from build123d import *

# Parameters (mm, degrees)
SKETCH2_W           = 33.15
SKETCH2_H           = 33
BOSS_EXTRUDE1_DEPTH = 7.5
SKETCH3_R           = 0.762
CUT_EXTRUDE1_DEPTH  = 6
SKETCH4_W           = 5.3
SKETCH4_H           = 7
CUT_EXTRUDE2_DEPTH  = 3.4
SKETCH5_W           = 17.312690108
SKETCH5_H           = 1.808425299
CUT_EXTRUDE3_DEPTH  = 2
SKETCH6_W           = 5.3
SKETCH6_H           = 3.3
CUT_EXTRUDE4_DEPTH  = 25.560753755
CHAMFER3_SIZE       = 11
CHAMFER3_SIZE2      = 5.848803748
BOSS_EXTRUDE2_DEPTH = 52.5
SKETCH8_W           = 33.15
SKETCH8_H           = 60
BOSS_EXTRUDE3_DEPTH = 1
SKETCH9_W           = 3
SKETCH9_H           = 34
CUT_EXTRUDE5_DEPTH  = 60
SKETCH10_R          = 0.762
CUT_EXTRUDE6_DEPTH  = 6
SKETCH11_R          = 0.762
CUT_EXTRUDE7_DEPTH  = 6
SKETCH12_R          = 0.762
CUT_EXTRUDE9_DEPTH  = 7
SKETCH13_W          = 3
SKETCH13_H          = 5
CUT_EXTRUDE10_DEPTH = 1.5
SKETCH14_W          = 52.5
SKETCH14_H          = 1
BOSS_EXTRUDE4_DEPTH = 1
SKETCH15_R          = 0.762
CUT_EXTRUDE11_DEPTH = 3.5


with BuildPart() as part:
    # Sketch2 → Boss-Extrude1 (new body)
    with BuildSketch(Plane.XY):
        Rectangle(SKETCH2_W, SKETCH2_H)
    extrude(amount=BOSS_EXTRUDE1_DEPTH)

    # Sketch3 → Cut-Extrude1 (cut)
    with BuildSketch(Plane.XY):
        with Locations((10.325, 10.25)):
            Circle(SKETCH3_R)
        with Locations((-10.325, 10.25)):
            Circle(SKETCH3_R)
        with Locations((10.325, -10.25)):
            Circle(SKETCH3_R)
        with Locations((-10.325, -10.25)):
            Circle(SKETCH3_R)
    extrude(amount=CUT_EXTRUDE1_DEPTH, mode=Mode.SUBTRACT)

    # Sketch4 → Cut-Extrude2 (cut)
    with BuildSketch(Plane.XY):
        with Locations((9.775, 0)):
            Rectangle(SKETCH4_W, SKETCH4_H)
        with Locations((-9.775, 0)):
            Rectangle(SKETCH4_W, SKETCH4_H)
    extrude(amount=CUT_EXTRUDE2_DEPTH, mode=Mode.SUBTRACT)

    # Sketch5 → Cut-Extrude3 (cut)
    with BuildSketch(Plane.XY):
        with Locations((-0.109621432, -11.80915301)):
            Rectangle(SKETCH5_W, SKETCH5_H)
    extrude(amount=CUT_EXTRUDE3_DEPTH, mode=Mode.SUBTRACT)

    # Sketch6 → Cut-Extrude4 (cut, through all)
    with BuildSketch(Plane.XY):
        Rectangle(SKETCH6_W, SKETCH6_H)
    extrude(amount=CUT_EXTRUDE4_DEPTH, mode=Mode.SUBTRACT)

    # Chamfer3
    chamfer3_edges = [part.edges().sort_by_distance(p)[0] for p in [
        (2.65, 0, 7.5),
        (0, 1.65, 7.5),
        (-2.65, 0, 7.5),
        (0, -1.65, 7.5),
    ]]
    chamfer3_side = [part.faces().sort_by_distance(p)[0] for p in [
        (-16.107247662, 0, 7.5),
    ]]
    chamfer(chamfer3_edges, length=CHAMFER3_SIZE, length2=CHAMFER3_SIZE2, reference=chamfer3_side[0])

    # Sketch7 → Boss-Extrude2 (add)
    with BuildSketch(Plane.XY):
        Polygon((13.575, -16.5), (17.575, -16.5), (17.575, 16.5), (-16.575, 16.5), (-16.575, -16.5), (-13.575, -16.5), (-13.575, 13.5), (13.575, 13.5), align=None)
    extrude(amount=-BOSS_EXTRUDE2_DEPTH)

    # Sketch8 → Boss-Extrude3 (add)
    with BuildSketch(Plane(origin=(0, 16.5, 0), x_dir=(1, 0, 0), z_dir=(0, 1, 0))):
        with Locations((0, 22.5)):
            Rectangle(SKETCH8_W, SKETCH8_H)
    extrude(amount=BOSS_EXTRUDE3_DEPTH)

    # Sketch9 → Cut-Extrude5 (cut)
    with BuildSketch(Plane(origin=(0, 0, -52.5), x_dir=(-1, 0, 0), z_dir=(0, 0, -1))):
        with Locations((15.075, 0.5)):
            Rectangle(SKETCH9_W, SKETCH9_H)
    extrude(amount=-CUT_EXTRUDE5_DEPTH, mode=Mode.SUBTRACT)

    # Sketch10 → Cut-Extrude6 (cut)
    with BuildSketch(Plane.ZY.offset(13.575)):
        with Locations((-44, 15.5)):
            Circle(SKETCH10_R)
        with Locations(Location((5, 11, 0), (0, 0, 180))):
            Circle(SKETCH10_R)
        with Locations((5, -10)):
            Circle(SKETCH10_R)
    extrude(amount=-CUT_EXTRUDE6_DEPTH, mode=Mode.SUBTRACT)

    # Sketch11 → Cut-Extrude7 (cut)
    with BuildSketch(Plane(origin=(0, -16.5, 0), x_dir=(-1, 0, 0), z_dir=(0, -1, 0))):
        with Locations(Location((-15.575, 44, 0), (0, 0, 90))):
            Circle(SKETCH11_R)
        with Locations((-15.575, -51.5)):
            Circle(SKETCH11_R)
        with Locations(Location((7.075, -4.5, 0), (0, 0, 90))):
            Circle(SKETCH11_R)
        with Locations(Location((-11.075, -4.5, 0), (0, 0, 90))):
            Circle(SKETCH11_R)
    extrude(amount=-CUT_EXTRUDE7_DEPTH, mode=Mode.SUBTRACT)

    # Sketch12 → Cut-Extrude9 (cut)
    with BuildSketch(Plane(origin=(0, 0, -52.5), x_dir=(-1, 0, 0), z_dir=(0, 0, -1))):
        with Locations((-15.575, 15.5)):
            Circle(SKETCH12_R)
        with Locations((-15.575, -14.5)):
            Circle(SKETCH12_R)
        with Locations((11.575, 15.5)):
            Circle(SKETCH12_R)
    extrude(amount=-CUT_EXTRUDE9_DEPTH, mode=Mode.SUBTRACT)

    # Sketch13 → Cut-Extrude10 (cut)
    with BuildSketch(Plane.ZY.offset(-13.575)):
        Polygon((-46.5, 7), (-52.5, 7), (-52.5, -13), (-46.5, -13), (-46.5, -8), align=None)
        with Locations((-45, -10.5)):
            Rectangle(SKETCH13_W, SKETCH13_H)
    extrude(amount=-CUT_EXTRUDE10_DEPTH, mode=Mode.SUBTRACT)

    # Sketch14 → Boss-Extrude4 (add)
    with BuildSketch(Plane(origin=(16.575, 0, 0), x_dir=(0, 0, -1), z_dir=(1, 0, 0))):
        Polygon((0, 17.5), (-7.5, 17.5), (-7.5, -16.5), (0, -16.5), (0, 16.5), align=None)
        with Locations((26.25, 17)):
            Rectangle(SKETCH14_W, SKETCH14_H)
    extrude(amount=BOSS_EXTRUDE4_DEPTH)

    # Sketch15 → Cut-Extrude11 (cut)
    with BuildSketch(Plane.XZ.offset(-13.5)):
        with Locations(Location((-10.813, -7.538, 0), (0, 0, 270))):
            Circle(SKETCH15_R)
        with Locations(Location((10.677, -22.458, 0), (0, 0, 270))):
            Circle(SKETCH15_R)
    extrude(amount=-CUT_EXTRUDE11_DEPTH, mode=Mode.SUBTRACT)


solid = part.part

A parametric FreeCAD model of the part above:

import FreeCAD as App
import Part
import Sketcher

V = App.Vector


def edges_at(feature, points):
    """Names of the edges that pass closest to the given points."""
    edges = feature.Shape.Edges
    near = lambda p: min(range(len(edges)), key=lambda i: edges[i].distToShape(Part.Vertex(*p))[0])
    return sorted({f"Edge{near(p) + 1}" for p in points})

doc = App.newDocument("Part")
body = doc.addObject("PartDesign::Body", "Body")

# Sketch on XY plane
sketch1 = body.newObject("Sketcher::SketchObject", "Sketch")
sketch1.AttachmentSupport = (doc.getObject("XY_Plane"), [""])
sketch1.MapMode = "FlatFace"
sketch1.addGeometry([
    Part.LineSegment(V(-17, 16, 0), V(-17, -16, 0)),
    Part.LineSegment(V(-17, -16, 0), V(17, -16, 0)),
    Part.LineSegment(V(17, -16, 0), V(17, 16, 0)),
    Part.LineSegment(V(17, 16, 0), V(-17, 16, 0)),
], False)
sketch1.addConstraint([
    Sketcher.Constraint("Coincident", 0, 2, 1, 1),
    Sketcher.Constraint("Coincident", 1, 2, 2, 1),
    Sketcher.Constraint("Coincident", 2, 2, 3, 1),
    Sketcher.Constraint("Coincident", 3, 2, 0, 1),
    Sketcher.Constraint("Vertical", 0),
    Sketcher.Constraint("Horizontal", 1),
    Sketcher.Constraint("Vertical", 2),
    Sketcher.Constraint("Horizontal", 3),
    Sketcher.Constraint("Symmetric", 0, 2, 2, 2, -1, 1),
    Sketcher.Constraint("DistanceY", 0, 2, 0, 1, 33.0),
    Sketcher.Constraint("DistanceX", 1, 1, 1, 2, 33.15),
])
pad1 = body.newObject("PartDesign::Pad", "Pad")
pad1.Profile = sketch1
pad1.Length = 7.5

# Sketch on XY plane
sketch2 = body.newObject("Sketcher::SketchObject", "Sketch001")
sketch2.AttachmentSupport = (doc.getObject("XY_Plane"), [""])
sketch2.MapMode = "FlatFace"
sketch2.addGeometry([
    Part.Circle(V(10.3, 10.2, 0), V(0, 0, 1), 0.8),
    Part.Circle(V(-10.3, 10.2, 0), V(0, 0, 1), 0.8),
    Part.Circle(V(10.3, -10.2, 0), V(0, 0, 1), 0.8),
    Part.Circle(V(-10.3, -10.2, 0), V(0, 0, 1), 0.8),
], False)
sketch2.addConstraint([
    Sketcher.Constraint("Equal", 0, 1),
    Sketcher.Constraint("Equal", 1, 2),
    Sketcher.Constraint("Equal", 2, 3),
    Sketcher.Constraint("Symmetric", 1, 3, 2, 3, -1, 1),
    Sketcher.Constraint("Symmetric", 0, 3, 3, 3, -1, 1),
    Sketcher.Constraint("Symmetric", 0, 3, 1, 3, -2),
    Sketcher.Constraint("Diameter", 0, 1.524),
    Sketcher.Constraint("DistanceY", 2, 3, 0, 3, 20.5),
    Sketcher.Constraint("DistanceX", 1, 3, 0, 3, 20.65),
])
pocket1 = body.newObject("PartDesign::Pocket", "Pocket")
pocket1.Profile = sketch2
pocket1.Length = 6
pocket1.Reversed = True

# Sketch on XY plane
sketch3 = body.newObject("Sketcher::SketchObject", "Sketch002")
sketch3.AttachmentSupport = (doc.getObject("XY_Plane"), [""])
sketch3.MapMode = "FlatFace"
sketch3.addGeometry([
    Part.LineSegment(V(7, 4, 0), V(7, -4, 0)),  # 0
    Part.LineSegment(V(7, -4, 0), V(12, -4, 0)),  # 1
    Part.LineSegment(V(12, -4, 0), V(12, 4, 0)),  # 2
    Part.LineSegment(V(12, 4, 0), V(7, 4, 0)),  # 3
    Part.LineSegment(V(-12, 4, 0), V(-12, -4, 0)),  # 4
    Part.LineSegment(V(-12, -4, 0), V(-7, -4, 0)),  # 5
    Part.LineSegment(V(-7, -4, 0), V(-7, 4, 0)),  # 6
    Part.LineSegment(V(-7, 4, 0), V(-12, 4, 0)),  # 7
], False)
sketch3.addConstraint([
    Sketcher.Constraint("Coincident", 0, 2, 1, 1),
    Sketcher.Constraint("Coincident", 1, 2, 2, 1),
    Sketcher.Constraint("Coincident", 2, 2, 3, 1),
    Sketcher.Constraint("Coincident", 3, 2, 0, 1),
    Sketcher.Constraint("Coincident", 4, 2, 5, 1),
    Sketcher.Constraint("Coincident", 5, 2, 6, 1),
    Sketcher.Constraint("Coincident", 6, 2, 7, 1),
    Sketcher.Constraint("Coincident", 7, 2, 4, 1),
    Sketcher.Constraint("Vertical", 0),
    Sketcher.Constraint("Horizontal", 1),
    Sketcher.Constraint("Vertical", 2),
    Sketcher.Constraint("Horizontal", 3),
    Sketcher.Constraint("Vertical", 4),
    Sketcher.Constraint("Horizontal", 5),
    Sketcher.Constraint("Vertical", 6),
    Sketcher.Constraint("Horizontal", 7),
    Sketcher.Constraint("Symmetric", 2, 2, 4, 2, -1, 1),
    Sketcher.Constraint("Symmetric", 0, 2, 6, 2, -1, 1),
    Sketcher.Constraint("Horizontal", 1, 2, 4, 2),
    Sketcher.Constraint("DistanceY", 0, 2, 0, 1, 7.0),
    Sketcher.Constraint("DistanceX", 1, 1, 1, 2, 5.3),
    Sketcher.Constraint("DistanceX", 4, 2, 0, 2, 19.55),
])
pocket2 = body.newObject("PartDesign::Pocket", "Pocket001")
pocket2.Profile = sketch3
pocket2.Length = 3.4
pocket2.Reversed = True

# Sketch on XY plane
sketch4 = body.newObject("Sketcher::SketchObject", "Sketch003")
sketch4.AttachmentSupport = (doc.getObject("XY_Plane"), [""])
sketch4.MapMode = "FlatFace"
sketch4.addGeometry([
    Part.LineSegment(V(-8.8, -10.9, 0), V(-8.8, -12.7, 0)),
    Part.LineSegment(V(-8.8, -12.7, 0), V(8.5, -12.7, 0)),
    Part.LineSegment(V(8.5, -12.7, 0), V(8.5, -10.9, 0)),
    Part.LineSegment(V(8.5, -10.9, 0), V(-8.8, -10.9, 0)),
], False)
sketch4.addConstraint([
    Sketcher.Constraint("Coincident", 0, 2, 1, 1),
    Sketcher.Constraint("Coincident", 1, 2, 2, 1),
    Sketcher.Constraint("Coincident", 2, 2, 3, 1),
    Sketcher.Constraint("Coincident", 3, 2, 0, 1),
    Sketcher.Constraint("Vertical", 0),
    Sketcher.Constraint("Horizontal", 1),
    Sketcher.Constraint("Vertical", 2),
    Sketcher.Constraint("Horizontal", 3),
    Sketcher.Constraint("DistanceX", 1, 1, 1, 2, 17.31269),
    Sketcher.Constraint("DistanceY", 0, 2, 0, 1, 1.808425),
    Sketcher.Constraint("DistanceY", 2, 2, -1, 1, 10.90494),
    Sketcher.Constraint("DistanceX", 0, 2, -1, 1, 8.765966),
])
pocket3 = body.newObject("PartDesign::Pocket", "Pocket002")
pocket3.Profile = sketch4
pocket3.Length = 2
pocket3.Reversed = True

# Sketch on XY plane
sketch5 = body.newObject("Sketcher::SketchObject", "Sketch004")
sketch5.AttachmentSupport = (doc.getObject("XY_Plane"), [""])
sketch5.MapMode = "FlatFace"
sketch5.addGeometry([
    Part.LineSegment(V(-2.6, 1.6, 0), V(-2.6, -1.6, 0)),
    Part.LineSegment(V(-2.6, -1.6, 0), V(2.6, -1.6, 0)),
    Part.LineSegment(V(2.6, -1.6, 0), V(2.6, 1.6, 0)),
    Part.LineSegment(V(2.6, 1.6, 0), V(-2.6, 1.6, 0)),
], False)
sketch5.addConstraint([
    Sketcher.Constraint("Coincident", 0, 2, 1, 1),
    Sketcher.Constraint("Coincident", 1, 2, 2, 1),
    Sketcher.Constraint("Coincident", 2, 2, 3, 1),
    Sketcher.Constraint("Coincident", 3, 2, 0, 1),
    Sketcher.Constraint("Vertical", 0),
    Sketcher.Constraint("Horizontal", 1),
    Sketcher.Constraint("Vertical", 2),
    Sketcher.Constraint("Horizontal", 3),
    Sketcher.Constraint("Symmetric", 0, 2, 2, 2, -1, 1),
    Sketcher.Constraint("DistanceX", 1, 1, 1, 2, 5.3),
    Sketcher.Constraint("DistanceY", 0, 2, 0, 1, 3.3),
])
pocket4 = body.newObject("PartDesign::Pocket", "Pocket003")
pocket4.Profile = sketch5
pocket4.Type = "ThroughAll"
pocket4.Reversed = True
doc.recompute()

chamfer = body.newObject("PartDesign::Chamfer", "Chamfer")
chamfer.Base = (pocket4, edges_at(pocket4, [
    (2.65, 0, 7.5),
    (0, 1.65, 7.5),
    (-2.65, 0, 7.5),
    (0, -1.65, 7.5),
]))
chamfer.ChamferType = "Two distances"
chamfer.Size = 11
chamfer.Size2 = 5.848804

# Sketch on XY plane
sketch6 = body.newObject("Sketcher::SketchObject", "Sketch005")
sketch6.AttachmentSupport = (doc.getObject("XY_Plane"), [""])
sketch6.MapMode = "FlatFace"
sketch6.addGeometry([
    Part.LineSegment(V(13.6, -16.5, 0), V(17.6, -16.5, 0)),  # 0
    Part.LineSegment(V(17.6, -16.5, 0), V(17.6, 16.5, 0)),  # 1
    Part.LineSegment(V(17.6, 16.5, 0), V(-16.6, 16.5, 0)),  # 2
    Part.LineSegment(V(-16.6, 16.5, 0), V(-16.6, -16.5, 0)),  # 3
    Part.LineSegment(V(-16.6, -16.5, 0), V(-13.6, -16.5, 0)),  # 4
    Part.LineSegment(V(-13.6, -16.5, 0), V(-13.6, 13.5, 0)),  # 5
    Part.LineSegment(V(-13.6, 13.5, 0), V(13.6, 13.5, 0)),  # 6
    Part.LineSegment(V(13.6, 13.5, 0), V(13.6, -16.5, 0)),  # 7
], False)
sketch6.addConstraint([
    Sketcher.Constraint("Coincident", 0, 2, 1, 1),
    Sketcher.Constraint("Coincident", 1, 2, 2, 1),
    Sketcher.Constraint("Coincident", 2, 2, 3, 1),
    Sketcher.Constraint("Coincident", 3, 2, 4, 1),
    Sketcher.Constraint("Coincident", 4, 2, 5, 1),
    Sketcher.Constraint("Coincident", 5, 2, 6, 1),
    Sketcher.Constraint("Coincident", 6, 2, 7, 1),
    Sketcher.Constraint("Coincident", 7, 2, 0, 1),
    Sketcher.Constraint("Horizontal", 0),
    Sketcher.Constraint("Vertical", 1),
    Sketcher.Constraint("Horizontal", 2),
    Sketcher.Constraint("Vertical", 3),
    Sketcher.Constraint("Horizontal", 4),
    Sketcher.Constraint("Vertical", 5),
    Sketcher.Constraint("Horizontal", 6),
    Sketcher.Constraint("Vertical", 7),
    Sketcher.Constraint("Symmetric", 4, 2, 7, 2, -2),
    Sketcher.Constraint("DistanceX", 0, 1, 0, 2, 4.0),
    Sketcher.Constraint("DistanceX", 4, 1, 4, 2, 3.0),
    Sketcher.Constraint("DistanceY", 1, 1, 1, 2, 33.0),
    Sketcher.Constraint("DistanceY", 5, 1, 5, 2, 30.0),
    Sketcher.Constraint("DistanceX", 2, 2, 2, 1, 34.15),
    Sketcher.Constraint("DistanceY", 0, 2, -1, 1, 16.5),
])
pad2 = body.newObject("PartDesign::Pad", "Pad001")
pad2.Profile = sketch6
pad2.Length = 52.5
pad2.Reversed = True

# Sketch on XZ plane
sketch7 = body.newObject("Sketcher::SketchObject", "Sketch006")
sketch7.AttachmentSupport = (doc.getObject("XZ_Plane"), [""])
sketch7.MapMode = "FlatFace"
sketch7.AttachmentOffset = App.Placement(V(0, 0, -16.5), App.Rotation())
sketch7.addGeometry([
    Part.LineSegment(V(-17, -52, 0), V(-17, 8, 0)),
    Part.LineSegment(V(-17, 8, 0), V(17, 8, 0)),
    Part.LineSegment(V(17, 8, 0), V(17, -52, 0)),
    Part.LineSegment(V(17, -52, 0), V(-17, -52, 0)),
], False)
sketch7.addConstraint([
    Sketcher.Constraint("Coincident", 0, 2, 1, 1),
    Sketcher.Constraint("Coincident", 1, 2, 2, 1),
    Sketcher.Constraint("Coincident", 2, 2, 3, 1),
    Sketcher.Constraint("Coincident", 3, 2, 0, 1),
    Sketcher.Constraint("Vertical", 0),
    Sketcher.Constraint("Horizontal", 1),
    Sketcher.Constraint("Vertical", 2),
    Sketcher.Constraint("Horizontal", 3),
    Sketcher.Constraint("DistanceY", 0, 1, 0, 2, 60.0),
    Sketcher.Constraint("DistanceX", 1, 1, 1, 2, 33.15),
    Sketcher.Constraint("DistanceY", -1, 1, 0, 2, 7.5),
    Sketcher.Constraint("DistanceX", 0, 2, -1, 1, 16.575),
])
pad3 = body.newObject("PartDesign::Pad", "Pad002")
pad3.Profile = sketch7
pad3.Length = 1
pad3.Reversed = True

# Sketch on XY plane
sketch8 = body.newObject("Sketcher::SketchObject", "Sketch007")
sketch8.AttachmentSupport = (doc.getObject("XY_Plane"), [""])
sketch8.MapMode = "FlatFace"
sketch8.AttachmentOffset = App.Placement(V(0, 0, -52.5), App.Rotation())
sketch8.addGeometry([
    Part.LineSegment(V(-13.6, 17.5, 0), V(-13.6, -16.5, 0)),
    Part.LineSegment(V(-13.6, -16.5, 0), V(-16.6, -16.5, 0)),
    Part.LineSegment(V(-16.6, -16.5, 0), V(-16.6, 17.5, 0)),
    Part.LineSegment(V(-16.6, 17.5, 0), V(-13.6, 17.5, 0)),
], False)
sketch8.addConstraint([
    Sketcher.Constraint("Coincident", 0, 2, 1, 1),
    Sketcher.Constraint("Coincident", 1, 2, 2, 1),
    Sketcher.Constraint("Coincident", 2, 2, 3, 1),
    Sketcher.Constraint("Coincident", 3, 2, 0, 1),
    Sketcher.Constraint("Vertical", 0),
    Sketcher.Constraint("Horizontal", 1),
    Sketcher.Constraint("Vertical", 2),
    Sketcher.Constraint("Horizontal", 3),
    Sketcher.Constraint("DistanceX", 1, 2, 1, 1, 3.0),
    Sketcher.Constraint("DistanceY", 0, 2, 0, 1, 34.0),
    Sketcher.Constraint("DistanceY", 0, 2, -1, 1, 16.5),
    Sketcher.Constraint("DistanceX", 0, 2, -1, 1, 13.575),
])
pocket5 = body.newObject("PartDesign::Pocket", "Pocket004")
pocket5.Profile = sketch8
pocket5.Length = 60
pocket5.Reversed = True

# Sketch on YZ plane
sketch9 = body.newObject("Sketcher::SketchObject", "Sketch008")
sketch9.AttachmentSupport = (doc.getObject("YZ_Plane"), [""])
sketch9.MapMode = "FlatFace"
sketch9.AttachmentOffset = App.Placement(V(0, 0, -13.575), App.Rotation())
sketch9.addGeometry([
    Part.Circle(V(15.5, -44, 0), V(0, 0, 1), 0.8),
    Part.Circle(V(11, 5, 0), V(0, 0, 1), 0.8),
    Part.Circle(V(-10, 5, 0), V(0, 0, 1), 0.8),
], False)
sketch9.addConstraint([
    Sketcher.Constraint("Equal", 0, 1),
    Sketcher.Constraint("Equal", 1, 2),
    Sketcher.Constraint("Horizontal", 1, 3, 2, 3),
    Sketcher.Constraint("Diameter", 0, 1.524),
    Sketcher.Constraint("DistanceY", 0, 3, -1, 1, 44.0),
    Sketcher.Constraint("DistanceX", -1, 1, 1, 3, 11.0),
    Sketcher.Constraint("DistanceY", -1, 1, 1, 3, 5.0),
    Sketcher.Constraint("DistanceX", 2, 3, -1, 1, 10.0),
    Sketcher.Constraint("DistanceX", -1, 1, 0, 3, 15.5),
])
pocket6 = body.newObject("PartDesign::Pocket", "Pocket005")
pocket6.Profile = sketch9
pocket6.Length = 6
pocket6.Reversed = True

# Sketch on XZ plane
sketch10 = body.newObject("Sketcher::SketchObject", "Sketch009")
sketch10.AttachmentSupport = (doc.getObject("XZ_Plane"), [""])
sketch10.MapMode = "FlatFace"
sketch10.AttachmentOffset = App.Placement(V(0, 0, 16.5), App.Rotation())
sketch10.addGeometry([
    Part.Circle(V(15.6, -44, 0), V(0, 0, 1), 0.8),
    Part.Circle(V(15.6, 51.5, 0), V(0, 0, 1), 0.8),
    Part.Circle(V(-7.1, 4.5, 0), V(0, 0, 1), 0.8),
    Part.Circle(V(11.1, 4.5, 0), V(0, 0, 1), 0.8),
], False)
sketch10.addConstraint([
    Sketcher.Constraint("Equal", 0, 1),
    Sketcher.Constraint("Equal", 1, 2),
    Sketcher.Constraint("Equal", 2, 3),
    Sketcher.Constraint("Horizontal", 2, 3, 3, 3),
    Sketcher.Constraint("Vertical", 0, 3, 1, 3),
    Sketcher.Constraint("Diameter", 0, 1.524),
    Sketcher.Constraint("DistanceY", 0, 3, -1, 1, 44.0),
    Sketcher.Constraint("DistanceY", 2, 3, 1, 3, 47.0),
    Sketcher.Constraint("DistanceY", -1, 1, 1, 3, 51.5),
    Sketcher.Constraint("DistanceX", 3, 3, 1, 3, 4.5),
    Sketcher.Constraint("DistanceX", 2, 3, 1, 3, 22.65),
    Sketcher.Constraint("DistanceX", -1, 1, 0, 3, 15.575),
])
pocket7 = body.newObject("PartDesign::Pocket", "Pocket006")
pocket7.Profile = sketch10
pocket7.Length = 6

# Sketch on XY plane
sketch11 = body.newObject("Sketcher::SketchObject", "Sketch010")
sketch11.AttachmentSupport = (doc.getObject("XY_Plane"), [""])
sketch11.MapMode = "FlatFace"
sketch11.AttachmentOffset = App.Placement(V(0, 0, -52.5), App.Rotation())
sketch11.addGeometry([
    Part.Circle(V(15.6, 15.5, 0), V(0, 0, 1), 0.8),
    Part.Circle(V(15.6, -14.5, 0), V(0, 0, 1), 0.8),
    Part.Circle(V(-11.6, 15.5, 0), V(0, 0, 1), 0.8),
], False)
sketch11.addConstraint([
    Sketcher.Constraint("Equal", 0, 1),
    Sketcher.Constraint("Equal", 1, 2),
    Sketcher.Constraint("Horizontal", 0, 3, 2, 3),
    Sketcher.Constraint("Vertical", 0, 3, 1, 3),
    Sketcher.Constraint("Diameter", 0, 1.524),
    Sketcher.Constraint("DistanceY", 1, 3, 0, 3, 30.0),
    Sketcher.Constraint("DistanceY", -1, 1, 0, 3, 15.5),
    Sketcher.Constraint("DistanceX", 2, 3, 0, 3, 27.15),
    Sketcher.Constraint("DistanceX", -1, 1, 0, 3, 15.575),
])
pocket8 = body.newObject("PartDesign::Pocket", "Pocket007")
pocket8.Profile = sketch11
pocket8.Length = 7
pocket8.Reversed = True

# Sketch on YZ plane
sketch12 = body.newObject("Sketcher::SketchObject", "Sketch011")
sketch12.AttachmentSupport = (doc.getObject("YZ_Plane"), [""])
sketch12.MapMode = "FlatFace"
sketch12.AttachmentOffset = App.Placement(V(0, 0, 13.575), App.Rotation())
sketch12.addGeometry([
    Part.LineSegment(V(7, -46.5, 0), V(7, -52.5, 0)),  # 0
    Part.LineSegment(V(7, -52.5, 0), V(-13, -52.5, 0)),  # 1
    Part.LineSegment(V(-13, -52.5, 0), V(-13, -43.5, 0)),  # 2
    Part.LineSegment(V(-13, -43.5, 0), V(-8, -43.5, 0)),  # 3
    Part.LineSegment(V(-8, -43.5, 0), V(-8, -46.5, 0)),  # 4
    Part.LineSegment(V(-8, -46.5, 0), V(7, -46.5, 0)),  # 5
], False)
sketch12.addConstraint([
    Sketcher.Constraint("Coincident", 0, 2, 1, 1),
    Sketcher.Constraint("Coincident", 1, 2, 2, 1),
    Sketcher.Constraint("Coincident", 2, 2, 3, 1),
    Sketcher.Constraint("Coincident", 3, 2, 4, 1),
    Sketcher.Constraint("Coincident", 4, 2, 5, 1),
    Sketcher.Constraint("Coincident", 5, 2, 0, 1),
    Sketcher.Constraint("Vertical", 0),
    Sketcher.Constraint("Horizontal", 1),
    Sketcher.Constraint("Vertical", 2),
    Sketcher.Constraint("Horizontal", 3),
    Sketcher.Constraint("Vertical", 4),
    Sketcher.Constraint("Horizontal", 5),
    Sketcher.Constraint("DistanceX", 1, 2, 1, 1, 20.0),
    Sketcher.Constraint("DistanceX", 3, 1, 3, 2, 5.0),
    Sketcher.Constraint("DistanceY", 0, 2, 0, 1, 6.0),
    Sketcher.Constraint("DistanceY", 2, 1, 2, 2, 9.0),
    Sketcher.Constraint("DistanceX", -1, 1, 0, 2, 7.0),
    Sketcher.Constraint("DistanceY", 0, 2, -1, 1, 52.5),
])
pocket9 = body.newObject("PartDesign::Pocket", "Pocket008")
pocket9.Profile = sketch12
pocket9.Length = 1.5
pocket9.Reversed = True

# Sketch on YZ plane
sketch13 = body.newObject("Sketcher::SketchObject", "Sketch012")
sketch13.AttachmentSupport = (doc.getObject("YZ_Plane"), [""])
sketch13.MapMode = "FlatFace"
sketch13.AttachmentOffset = App.Placement(V(0, 0, 16.575), App.Rotation())
sketch13.addGeometry([
    Part.LineSegment(V(17.5, 7.5, 0), V(-16.5, 7.5, 0)),  # 0
    Part.LineSegment(V(-16.5, 7.5, 0), V(-16.5, 0, 0)),  # 1
    Part.LineSegment(V(-16.5, 0, 0), V(16.5, 0, 0)),  # 2
    Part.LineSegment(V(16.5, 0, 0), V(16.5, -52.5, 0)),  # 3
    Part.LineSegment(V(16.5, -52.5, 0), V(17.5, -52.5, 0)),  # 4
    Part.LineSegment(V(17.5, -52.5, 0), V(17.5, 7.5, 0)),  # 5
], False)
sketch13.addConstraint([
    Sketcher.Constraint("Coincident", 0, 2, 1, 1),
    Sketcher.Constraint("Coincident", 1, 2, 2, 1),
    Sketcher.Constraint("Coincident", 2, 2, 3, 1),
    Sketcher.Constraint("Coincident", 3, 2, 4, 1),
    Sketcher.Constraint("Coincident", 4, 2, 5, 1),
    Sketcher.Constraint("Coincident", 5, 2, 0, 1),
    Sketcher.Constraint("Horizontal", 0),
    Sketcher.Constraint("Vertical", 1),
    Sketcher.Constraint("Horizontal", 2),
    Sketcher.Constraint("Vertical", 3),
    Sketcher.Constraint("Horizontal", 4),
    Sketcher.Constraint("Vertical", 5),
    Sketcher.Constraint("Symmetric", 1, 2, 2, 2, -1, 1),
    Sketcher.Constraint("DistanceX", 0, 2, 0, 1, 34.0),
    Sketcher.Constraint("DistanceX", 2, 1, 2, 2, 33.0),
    Sketcher.Constraint("DistanceY", 5, 1, 5, 2, 60.0),
    Sketcher.Constraint("DistanceY", 1, 2, 1, 1, 7.5),
])
pad4 = body.newObject("PartDesign::Pad", "Pad003")
pad4.Profile = sketch13
pad4.Length = 1

# Sketch on XZ plane
sketch14 = body.newObject("Sketcher::SketchObject", "Sketch013")
sketch14.AttachmentSupport = (doc.getObject("XZ_Plane"), [""])
sketch14.MapMode = "FlatFace"
sketch14.AttachmentOffset = App.Placement(V(0, 0, -13.5), App.Rotation())
sketch14.addGeometry([
    Part.Circle(V(-10.8, -7.5, 0), V(0, 0, 1), 0.8),
    Part.Circle(V(10.7, -22.5, 0), V(0, 0, 1), 0.8),
], False)
sketch14.addConstraint([
    Sketcher.Constraint("Equal", 0, 1),
    Sketcher.Constraint("Diameter", 0, 1.524),
    Sketcher.Constraint("DistanceX", 0, 3, 1, 3, 21.49),
    Sketcher.Constraint("DistanceY", 1, 3, 0, 3, 14.92),
    Sketcher.Constraint("DistanceX", 0, 3, -1, 1, 10.813),
    Sketcher.Constraint("DistanceY", 0, 3, -1, 1, 7.538),
])
pocket10 = body.newObject("PartDesign::Pocket", "Pocket009")
pocket10.Profile = sketch14
pocket10.Length = 3.5

doc.recompute()
